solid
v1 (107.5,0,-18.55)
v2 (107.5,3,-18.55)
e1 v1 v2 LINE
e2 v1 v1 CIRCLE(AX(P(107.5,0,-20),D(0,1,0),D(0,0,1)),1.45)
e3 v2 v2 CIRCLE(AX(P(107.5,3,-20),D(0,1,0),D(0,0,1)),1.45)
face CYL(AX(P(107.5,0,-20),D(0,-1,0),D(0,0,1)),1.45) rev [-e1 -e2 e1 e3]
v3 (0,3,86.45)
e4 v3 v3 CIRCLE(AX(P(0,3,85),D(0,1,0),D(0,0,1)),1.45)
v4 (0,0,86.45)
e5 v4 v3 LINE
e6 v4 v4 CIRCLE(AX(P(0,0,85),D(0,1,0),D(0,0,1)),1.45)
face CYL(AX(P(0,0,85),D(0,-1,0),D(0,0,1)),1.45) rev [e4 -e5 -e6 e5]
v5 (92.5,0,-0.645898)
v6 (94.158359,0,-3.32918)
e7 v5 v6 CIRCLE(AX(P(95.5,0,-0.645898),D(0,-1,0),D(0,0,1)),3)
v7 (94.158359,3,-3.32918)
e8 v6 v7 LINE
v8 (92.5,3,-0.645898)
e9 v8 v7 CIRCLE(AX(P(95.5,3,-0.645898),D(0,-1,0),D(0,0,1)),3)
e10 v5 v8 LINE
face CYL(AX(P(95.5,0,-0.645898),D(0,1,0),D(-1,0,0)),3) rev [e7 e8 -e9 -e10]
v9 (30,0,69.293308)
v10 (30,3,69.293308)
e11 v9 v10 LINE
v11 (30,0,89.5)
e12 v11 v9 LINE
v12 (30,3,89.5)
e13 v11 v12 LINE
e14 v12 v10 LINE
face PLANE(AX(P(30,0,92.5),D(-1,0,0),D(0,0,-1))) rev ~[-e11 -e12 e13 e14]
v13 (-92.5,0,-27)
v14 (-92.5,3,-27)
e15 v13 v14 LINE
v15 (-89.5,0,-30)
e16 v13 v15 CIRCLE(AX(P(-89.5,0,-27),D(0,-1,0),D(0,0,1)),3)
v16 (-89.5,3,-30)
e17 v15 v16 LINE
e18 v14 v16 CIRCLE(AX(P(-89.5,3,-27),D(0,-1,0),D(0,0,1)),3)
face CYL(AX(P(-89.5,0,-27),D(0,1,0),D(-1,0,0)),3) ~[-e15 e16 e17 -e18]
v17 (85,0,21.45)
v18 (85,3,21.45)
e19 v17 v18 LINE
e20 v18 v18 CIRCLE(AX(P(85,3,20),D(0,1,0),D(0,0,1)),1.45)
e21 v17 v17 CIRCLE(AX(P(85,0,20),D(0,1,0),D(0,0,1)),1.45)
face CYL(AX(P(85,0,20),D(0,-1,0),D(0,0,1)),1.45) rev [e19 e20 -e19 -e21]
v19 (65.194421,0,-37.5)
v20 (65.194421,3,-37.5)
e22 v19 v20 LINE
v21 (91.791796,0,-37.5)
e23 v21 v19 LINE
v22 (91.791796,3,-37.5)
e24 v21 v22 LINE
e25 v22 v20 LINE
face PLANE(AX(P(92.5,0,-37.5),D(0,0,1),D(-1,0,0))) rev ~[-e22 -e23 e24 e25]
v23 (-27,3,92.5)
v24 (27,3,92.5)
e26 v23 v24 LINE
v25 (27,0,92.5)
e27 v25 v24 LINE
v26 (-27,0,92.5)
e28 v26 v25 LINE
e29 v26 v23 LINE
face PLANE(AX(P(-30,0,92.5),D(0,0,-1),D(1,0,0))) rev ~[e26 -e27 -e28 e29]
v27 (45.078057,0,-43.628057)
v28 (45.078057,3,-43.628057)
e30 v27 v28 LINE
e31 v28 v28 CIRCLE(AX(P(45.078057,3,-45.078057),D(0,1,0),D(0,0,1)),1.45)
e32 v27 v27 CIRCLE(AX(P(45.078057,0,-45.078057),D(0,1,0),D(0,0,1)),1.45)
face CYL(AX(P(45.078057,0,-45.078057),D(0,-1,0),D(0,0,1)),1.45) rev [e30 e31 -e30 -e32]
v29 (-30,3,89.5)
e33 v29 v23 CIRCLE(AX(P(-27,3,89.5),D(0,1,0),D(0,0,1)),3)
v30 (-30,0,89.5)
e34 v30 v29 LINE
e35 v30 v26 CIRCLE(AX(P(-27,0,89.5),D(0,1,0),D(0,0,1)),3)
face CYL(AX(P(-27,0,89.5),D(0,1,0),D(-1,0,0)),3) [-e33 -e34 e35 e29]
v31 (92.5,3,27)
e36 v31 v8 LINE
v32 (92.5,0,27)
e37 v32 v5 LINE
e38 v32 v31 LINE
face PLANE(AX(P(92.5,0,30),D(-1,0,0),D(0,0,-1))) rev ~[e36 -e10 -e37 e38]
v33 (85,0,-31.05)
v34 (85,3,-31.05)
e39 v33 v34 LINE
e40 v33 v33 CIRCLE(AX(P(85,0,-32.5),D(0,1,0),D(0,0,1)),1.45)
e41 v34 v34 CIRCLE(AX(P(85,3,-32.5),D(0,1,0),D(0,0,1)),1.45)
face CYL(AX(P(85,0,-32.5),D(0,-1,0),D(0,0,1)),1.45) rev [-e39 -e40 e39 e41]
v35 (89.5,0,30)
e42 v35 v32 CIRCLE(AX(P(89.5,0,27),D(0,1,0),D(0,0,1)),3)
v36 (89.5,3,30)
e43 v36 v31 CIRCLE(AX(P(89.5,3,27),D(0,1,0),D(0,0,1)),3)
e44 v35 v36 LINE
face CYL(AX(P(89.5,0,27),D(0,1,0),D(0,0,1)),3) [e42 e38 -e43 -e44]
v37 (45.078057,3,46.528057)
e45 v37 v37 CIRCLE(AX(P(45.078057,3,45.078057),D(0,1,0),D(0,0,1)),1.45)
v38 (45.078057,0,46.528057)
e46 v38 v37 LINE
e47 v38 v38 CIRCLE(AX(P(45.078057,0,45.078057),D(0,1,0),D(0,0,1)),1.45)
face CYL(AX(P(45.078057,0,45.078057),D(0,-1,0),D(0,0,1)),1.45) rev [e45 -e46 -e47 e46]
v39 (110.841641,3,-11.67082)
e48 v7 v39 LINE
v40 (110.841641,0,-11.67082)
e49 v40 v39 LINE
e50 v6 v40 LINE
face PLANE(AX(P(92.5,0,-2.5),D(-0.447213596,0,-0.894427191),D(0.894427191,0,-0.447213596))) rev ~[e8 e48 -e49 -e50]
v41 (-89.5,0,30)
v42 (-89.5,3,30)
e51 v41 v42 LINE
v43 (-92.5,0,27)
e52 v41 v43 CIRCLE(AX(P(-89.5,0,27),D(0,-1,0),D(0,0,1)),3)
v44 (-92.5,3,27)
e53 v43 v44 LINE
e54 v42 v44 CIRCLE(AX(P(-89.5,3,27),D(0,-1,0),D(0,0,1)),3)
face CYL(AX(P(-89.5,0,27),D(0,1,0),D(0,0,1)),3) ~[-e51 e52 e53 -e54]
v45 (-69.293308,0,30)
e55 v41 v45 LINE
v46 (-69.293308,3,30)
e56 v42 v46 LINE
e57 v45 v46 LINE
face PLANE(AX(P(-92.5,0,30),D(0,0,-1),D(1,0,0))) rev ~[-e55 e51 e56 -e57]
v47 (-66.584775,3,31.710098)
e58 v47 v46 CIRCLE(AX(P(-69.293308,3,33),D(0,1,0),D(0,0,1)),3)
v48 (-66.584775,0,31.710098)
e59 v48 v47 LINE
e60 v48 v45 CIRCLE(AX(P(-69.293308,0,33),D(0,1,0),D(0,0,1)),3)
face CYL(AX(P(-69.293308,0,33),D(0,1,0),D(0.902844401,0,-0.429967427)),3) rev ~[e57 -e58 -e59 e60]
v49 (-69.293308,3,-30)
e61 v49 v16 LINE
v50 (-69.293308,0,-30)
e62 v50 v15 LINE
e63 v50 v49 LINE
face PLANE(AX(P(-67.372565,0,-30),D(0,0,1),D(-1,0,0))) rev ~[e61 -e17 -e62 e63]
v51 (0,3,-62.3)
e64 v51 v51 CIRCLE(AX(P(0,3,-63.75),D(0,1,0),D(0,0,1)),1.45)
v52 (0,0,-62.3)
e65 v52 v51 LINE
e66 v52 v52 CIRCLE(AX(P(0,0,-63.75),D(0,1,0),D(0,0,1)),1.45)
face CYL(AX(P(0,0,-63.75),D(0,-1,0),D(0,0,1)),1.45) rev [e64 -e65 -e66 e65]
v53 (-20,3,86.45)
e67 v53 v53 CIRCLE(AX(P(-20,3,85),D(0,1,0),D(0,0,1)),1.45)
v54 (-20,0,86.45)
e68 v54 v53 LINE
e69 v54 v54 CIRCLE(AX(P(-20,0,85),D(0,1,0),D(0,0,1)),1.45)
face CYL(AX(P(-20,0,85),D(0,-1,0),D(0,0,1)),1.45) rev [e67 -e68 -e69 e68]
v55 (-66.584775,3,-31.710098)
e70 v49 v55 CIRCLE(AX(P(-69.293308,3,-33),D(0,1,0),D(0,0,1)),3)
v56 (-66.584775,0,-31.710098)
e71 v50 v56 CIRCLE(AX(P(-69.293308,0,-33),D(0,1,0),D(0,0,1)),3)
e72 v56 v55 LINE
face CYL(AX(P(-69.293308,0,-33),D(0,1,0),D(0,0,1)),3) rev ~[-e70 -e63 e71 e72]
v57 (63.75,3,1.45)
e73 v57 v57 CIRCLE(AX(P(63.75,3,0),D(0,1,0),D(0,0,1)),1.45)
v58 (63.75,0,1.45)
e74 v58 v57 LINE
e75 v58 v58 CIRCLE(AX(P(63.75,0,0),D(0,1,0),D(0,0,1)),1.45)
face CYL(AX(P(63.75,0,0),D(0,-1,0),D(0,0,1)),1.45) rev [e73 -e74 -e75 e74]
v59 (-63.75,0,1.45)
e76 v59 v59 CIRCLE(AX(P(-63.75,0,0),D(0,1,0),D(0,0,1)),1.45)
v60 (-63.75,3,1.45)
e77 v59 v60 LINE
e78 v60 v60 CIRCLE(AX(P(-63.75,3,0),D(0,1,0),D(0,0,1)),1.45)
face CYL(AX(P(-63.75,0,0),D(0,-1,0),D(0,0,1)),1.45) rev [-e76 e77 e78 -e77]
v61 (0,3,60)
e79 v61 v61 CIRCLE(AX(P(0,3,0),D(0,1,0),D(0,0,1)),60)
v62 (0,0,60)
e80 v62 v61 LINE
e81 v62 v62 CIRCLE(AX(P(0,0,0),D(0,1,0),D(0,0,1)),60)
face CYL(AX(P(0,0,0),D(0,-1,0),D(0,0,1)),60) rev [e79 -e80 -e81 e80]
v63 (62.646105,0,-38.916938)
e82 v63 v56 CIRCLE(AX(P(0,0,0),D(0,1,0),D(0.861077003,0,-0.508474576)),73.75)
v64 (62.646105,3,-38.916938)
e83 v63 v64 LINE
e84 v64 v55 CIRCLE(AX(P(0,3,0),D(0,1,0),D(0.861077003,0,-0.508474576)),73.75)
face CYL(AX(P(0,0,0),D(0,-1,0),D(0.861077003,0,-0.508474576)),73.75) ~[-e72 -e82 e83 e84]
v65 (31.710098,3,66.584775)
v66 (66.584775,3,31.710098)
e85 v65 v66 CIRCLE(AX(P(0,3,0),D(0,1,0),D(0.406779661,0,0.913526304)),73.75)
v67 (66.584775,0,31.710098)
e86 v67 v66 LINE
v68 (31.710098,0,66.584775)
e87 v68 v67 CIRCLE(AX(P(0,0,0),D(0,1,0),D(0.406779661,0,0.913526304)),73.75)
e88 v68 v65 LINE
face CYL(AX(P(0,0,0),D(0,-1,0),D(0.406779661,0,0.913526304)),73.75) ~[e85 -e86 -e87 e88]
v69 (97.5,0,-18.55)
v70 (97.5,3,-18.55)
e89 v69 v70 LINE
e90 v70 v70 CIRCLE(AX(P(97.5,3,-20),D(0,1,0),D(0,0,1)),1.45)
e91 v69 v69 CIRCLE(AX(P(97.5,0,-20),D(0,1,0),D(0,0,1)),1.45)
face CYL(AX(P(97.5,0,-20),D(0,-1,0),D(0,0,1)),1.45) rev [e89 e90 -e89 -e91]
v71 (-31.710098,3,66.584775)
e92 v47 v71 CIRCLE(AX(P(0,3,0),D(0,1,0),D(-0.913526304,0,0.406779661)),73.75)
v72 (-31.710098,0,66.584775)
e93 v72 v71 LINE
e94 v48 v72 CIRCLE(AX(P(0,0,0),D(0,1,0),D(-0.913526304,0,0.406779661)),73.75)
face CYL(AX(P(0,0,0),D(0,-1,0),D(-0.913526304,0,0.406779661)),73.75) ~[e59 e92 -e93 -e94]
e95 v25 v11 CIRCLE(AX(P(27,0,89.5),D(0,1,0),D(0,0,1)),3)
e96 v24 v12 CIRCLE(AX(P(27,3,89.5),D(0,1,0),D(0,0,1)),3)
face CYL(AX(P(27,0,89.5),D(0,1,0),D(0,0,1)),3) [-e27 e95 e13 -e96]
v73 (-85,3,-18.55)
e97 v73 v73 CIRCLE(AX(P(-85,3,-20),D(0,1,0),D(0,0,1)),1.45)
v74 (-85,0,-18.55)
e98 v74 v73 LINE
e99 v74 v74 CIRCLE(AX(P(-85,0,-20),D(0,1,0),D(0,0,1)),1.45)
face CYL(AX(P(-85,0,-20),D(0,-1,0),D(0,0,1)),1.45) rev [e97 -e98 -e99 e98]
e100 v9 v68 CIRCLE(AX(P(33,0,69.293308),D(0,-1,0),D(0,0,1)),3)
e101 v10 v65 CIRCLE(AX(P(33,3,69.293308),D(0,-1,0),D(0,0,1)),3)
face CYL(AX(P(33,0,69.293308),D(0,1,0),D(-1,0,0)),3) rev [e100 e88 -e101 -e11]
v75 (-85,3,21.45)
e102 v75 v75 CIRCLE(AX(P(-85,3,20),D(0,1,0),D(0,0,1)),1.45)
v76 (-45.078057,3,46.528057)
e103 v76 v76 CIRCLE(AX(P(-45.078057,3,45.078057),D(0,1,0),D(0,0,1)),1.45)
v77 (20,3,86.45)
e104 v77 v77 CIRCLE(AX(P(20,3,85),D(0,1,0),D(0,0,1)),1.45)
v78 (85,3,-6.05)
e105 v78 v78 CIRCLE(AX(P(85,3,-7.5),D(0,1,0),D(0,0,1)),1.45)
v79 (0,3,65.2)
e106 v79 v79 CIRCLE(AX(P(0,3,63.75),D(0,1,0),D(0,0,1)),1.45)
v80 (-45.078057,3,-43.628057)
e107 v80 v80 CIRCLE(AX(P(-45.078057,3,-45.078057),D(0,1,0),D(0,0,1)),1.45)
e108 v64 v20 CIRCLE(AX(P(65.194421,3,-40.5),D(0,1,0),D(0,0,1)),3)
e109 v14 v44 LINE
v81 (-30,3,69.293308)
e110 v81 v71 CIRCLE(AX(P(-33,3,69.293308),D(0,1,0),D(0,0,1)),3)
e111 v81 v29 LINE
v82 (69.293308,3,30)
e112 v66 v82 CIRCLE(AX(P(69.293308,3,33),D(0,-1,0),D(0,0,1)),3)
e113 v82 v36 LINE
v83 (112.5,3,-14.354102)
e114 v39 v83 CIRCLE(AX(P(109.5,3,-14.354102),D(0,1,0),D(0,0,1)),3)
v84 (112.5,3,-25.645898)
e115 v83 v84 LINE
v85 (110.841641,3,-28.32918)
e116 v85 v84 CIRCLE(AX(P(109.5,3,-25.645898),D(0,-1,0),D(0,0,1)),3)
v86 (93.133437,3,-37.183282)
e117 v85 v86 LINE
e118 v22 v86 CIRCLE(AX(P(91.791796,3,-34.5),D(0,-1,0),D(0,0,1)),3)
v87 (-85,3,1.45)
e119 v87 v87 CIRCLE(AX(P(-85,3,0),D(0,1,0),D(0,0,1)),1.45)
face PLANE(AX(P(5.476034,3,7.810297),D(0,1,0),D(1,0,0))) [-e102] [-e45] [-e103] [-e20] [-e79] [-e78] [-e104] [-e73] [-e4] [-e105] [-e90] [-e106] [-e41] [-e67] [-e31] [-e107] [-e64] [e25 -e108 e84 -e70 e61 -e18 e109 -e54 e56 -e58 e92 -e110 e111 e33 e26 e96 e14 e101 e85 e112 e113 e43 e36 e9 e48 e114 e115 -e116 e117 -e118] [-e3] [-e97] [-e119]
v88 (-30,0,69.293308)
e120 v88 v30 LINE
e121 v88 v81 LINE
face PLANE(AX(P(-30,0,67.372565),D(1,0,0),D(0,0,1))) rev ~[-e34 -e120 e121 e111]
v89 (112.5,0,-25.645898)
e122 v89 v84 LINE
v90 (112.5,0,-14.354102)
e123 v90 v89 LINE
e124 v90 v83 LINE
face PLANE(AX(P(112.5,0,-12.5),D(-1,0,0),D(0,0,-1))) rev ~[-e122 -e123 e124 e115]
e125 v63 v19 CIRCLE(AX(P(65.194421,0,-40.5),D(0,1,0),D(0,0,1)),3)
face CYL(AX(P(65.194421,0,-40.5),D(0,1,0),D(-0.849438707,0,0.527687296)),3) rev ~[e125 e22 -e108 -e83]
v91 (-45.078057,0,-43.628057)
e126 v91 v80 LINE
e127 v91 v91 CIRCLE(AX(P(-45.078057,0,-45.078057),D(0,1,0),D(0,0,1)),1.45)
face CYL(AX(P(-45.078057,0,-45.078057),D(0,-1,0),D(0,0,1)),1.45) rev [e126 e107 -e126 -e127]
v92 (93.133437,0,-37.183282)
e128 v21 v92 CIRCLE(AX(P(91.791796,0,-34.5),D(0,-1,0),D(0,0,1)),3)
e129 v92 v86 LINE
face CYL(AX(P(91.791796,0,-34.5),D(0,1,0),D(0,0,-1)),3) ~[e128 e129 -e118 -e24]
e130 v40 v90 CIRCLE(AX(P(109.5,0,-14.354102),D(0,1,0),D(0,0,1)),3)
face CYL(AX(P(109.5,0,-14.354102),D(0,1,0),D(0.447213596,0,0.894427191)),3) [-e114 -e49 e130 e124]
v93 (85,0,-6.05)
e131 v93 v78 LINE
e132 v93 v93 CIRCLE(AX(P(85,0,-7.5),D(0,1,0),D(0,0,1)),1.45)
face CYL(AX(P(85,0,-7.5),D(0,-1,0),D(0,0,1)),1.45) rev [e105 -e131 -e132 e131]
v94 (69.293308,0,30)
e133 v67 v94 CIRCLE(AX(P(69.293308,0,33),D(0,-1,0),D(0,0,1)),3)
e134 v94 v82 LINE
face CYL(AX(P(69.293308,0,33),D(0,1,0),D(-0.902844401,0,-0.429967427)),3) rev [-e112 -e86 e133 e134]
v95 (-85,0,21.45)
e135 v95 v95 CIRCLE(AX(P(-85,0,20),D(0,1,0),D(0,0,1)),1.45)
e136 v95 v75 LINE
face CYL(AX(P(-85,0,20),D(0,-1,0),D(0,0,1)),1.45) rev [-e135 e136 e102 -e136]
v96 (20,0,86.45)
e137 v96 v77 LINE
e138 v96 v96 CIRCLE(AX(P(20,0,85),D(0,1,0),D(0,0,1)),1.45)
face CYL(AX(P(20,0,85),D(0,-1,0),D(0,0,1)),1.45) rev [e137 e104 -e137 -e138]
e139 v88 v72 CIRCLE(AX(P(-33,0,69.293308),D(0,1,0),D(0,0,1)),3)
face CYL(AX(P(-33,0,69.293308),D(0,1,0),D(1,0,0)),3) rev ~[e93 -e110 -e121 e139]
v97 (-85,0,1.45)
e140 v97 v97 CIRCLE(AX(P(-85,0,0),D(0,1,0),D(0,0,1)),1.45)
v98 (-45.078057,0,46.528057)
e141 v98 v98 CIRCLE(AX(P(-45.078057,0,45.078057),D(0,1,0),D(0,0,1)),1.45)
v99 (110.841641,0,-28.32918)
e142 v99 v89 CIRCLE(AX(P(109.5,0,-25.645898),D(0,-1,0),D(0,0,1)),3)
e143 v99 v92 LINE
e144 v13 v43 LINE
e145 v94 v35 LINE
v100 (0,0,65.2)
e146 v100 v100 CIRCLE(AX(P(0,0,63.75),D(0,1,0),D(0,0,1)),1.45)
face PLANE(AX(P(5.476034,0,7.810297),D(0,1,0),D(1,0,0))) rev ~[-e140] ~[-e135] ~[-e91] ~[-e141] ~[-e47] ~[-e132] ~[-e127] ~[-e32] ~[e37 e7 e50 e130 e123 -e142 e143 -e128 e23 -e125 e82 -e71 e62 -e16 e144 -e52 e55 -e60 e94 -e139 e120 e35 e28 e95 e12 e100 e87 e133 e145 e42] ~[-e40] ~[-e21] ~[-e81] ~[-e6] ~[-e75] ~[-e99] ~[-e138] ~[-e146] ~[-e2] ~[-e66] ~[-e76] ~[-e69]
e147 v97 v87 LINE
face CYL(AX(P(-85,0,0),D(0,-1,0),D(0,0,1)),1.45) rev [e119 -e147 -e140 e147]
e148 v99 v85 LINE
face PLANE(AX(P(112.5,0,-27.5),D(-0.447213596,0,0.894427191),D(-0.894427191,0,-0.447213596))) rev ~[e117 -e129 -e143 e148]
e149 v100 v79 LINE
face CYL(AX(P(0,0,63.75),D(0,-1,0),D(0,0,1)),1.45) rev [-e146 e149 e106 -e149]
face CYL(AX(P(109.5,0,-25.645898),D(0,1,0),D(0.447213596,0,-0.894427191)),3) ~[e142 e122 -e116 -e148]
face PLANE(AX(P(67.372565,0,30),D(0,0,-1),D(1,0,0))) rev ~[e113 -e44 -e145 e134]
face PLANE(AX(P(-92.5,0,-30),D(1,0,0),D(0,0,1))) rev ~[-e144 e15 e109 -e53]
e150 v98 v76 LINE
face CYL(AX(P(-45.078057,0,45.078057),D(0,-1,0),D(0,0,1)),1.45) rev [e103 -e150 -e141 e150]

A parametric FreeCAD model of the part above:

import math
import FreeCAD as App
import Part
import Sketcher

V = App.Vector


def edges_at(feature, points):
    """Names of the edges that pass closest to the given points."""
    edges = feature.Shape.Edges
    near = lambda p: min(range(len(edges)), key=lambda i: edges[i].distToShape(Part.Vertex(*p))[0])
    return sorted({f"Edge{near(p) + 1}" for p in points})

doc = App.newDocument("Part")
body = doc.addObject("PartDesign::Body", "Body")

# Sketch on XZ plane
sketch1 = doc.addObject("Sketcher::SketchObject", "Sketch")
body.addObject(sketch1)
sketch1.AttachmentSupport = (doc.XZ_Plane, [""])
sketch1.MapMode = "FlatFace"
sketch1.addGeometry([
    Part.LineSegment(V(-30, 67.4, 0), V(-30, 92.5, 0)),  # 0
    Part.LineSegment(V(-30, 92.5, 0), V(30, 92.5, 0)),  # 1
    Part.LineSegment(V(30, 92.5, 0), V(30, 67.4, 0)),  # 2
    Part.ArcOfCircle(Part.Circle(V(0, 0, 0), V(0, 0, 1), 73.7), math.radians(24), math.radians(66)),  # 3
    Part.LineSegment(V(67.4, 30, 0), V(92.5, 30, 0)),  # 4
    Part.LineSegment(V(92.5, 30, 0), V(92.5, -2.5, 0)),  # 5
    Part.LineSegment(V(92.5, -2.5, 0), V(112.5, -12.5, 0)),  # 6
    Part.LineSegment(V(112.5, -12.5, 0), V(112.5, -27.5, 0)),  # 7
    Part.LineSegment(V(112.5, -27.5, 0), V(92.5, -37.5, 0)),  # 8
    Part.LineSegment(V(92.5, -37.5, 0), V(63.5, -37.5, 0)),  # 9
    Part.ArcOfCircle(Part.Circle(V(0, 0, 0), V(0, 0, 1), 73.8), math.radians(-156), math.radians(-31)),  # 10
    Part.LineSegment(V(-67.4, -30, 0), V(-92.5, -30, 0)),  # 11
    Part.LineSegment(V(-92.5, -30, 0), V(-92.5, 30, 0)),  # 12
    Part.LineSegment(V(-92.5, 30, 0), V(-67.4, 30, 0)),  # 13
    Part.ArcOfCircle(Part.Circle(V(0, 0, 0), V(0, 0, 1), 73.7), math.radians(114), math.radians(156)),  # 14
    Part.Circle(V(-20, 85, 0), V(0, 0, 1), 1.4),  # 15
    Part.Circle(V(0, 85, 0), V(0, 0, 1), 1.4),  # 16
    Part.Circle(V(0, 63.8, 0), V(0, 0, 1), 1.4),  # 17
    Part.Circle(V(-45.1, 45.1, 0), V(0, 0, 1), 1.4),  # 18
    Part.Circle(V(-85, 20, 0), V(0, 0, 1), 1.4),  # 19
    Part.Circle(V(20, 85, 0), V(0, 0, 1), 1.4),  # 20
    Part.Circle(V(45.1, 45.1, 0), V(0, 0, 1), 1.4),  # 21
    Part.Circle(V(85, 20, 0), V(0, 0, 1), 1.4),  # 22
    Part.Circle(V(-85, 0, 0), V(0, 0, 1), 1.4),  # 23
    Part.Circle(V(-63.8, 0, 0), V(0, 0, 1), 1.4),  # 24
    Part.Circle(V(-85, -20, 0), V(0, 0, 1), 1.4),  # 25
    Part.Circle(V(0, 0, 0), V(0, 0, 1), 60),  # 26
    Part.Circle(V(-45.1, -45.1, 0), V(0, 0, 1), 1.4),  # 27
    Part.Circle(V(0, -63.8, 0), V(0, 0, 1), 1.4),  # 28
    Part.Circle(V(63.8, 0, 0), V(0, 0, 1), 1.4),  # 29
    Part.Circle(V(85, -7.5, 0), V(0, 0, 1), 1.4),  # 30
    Part.Circle(V(97.5, -20, 0), V(0, 0, 1), 1.4),  # 31
    Part.Circle(V(107.5, -20, 0), V(0, 0, 1), 1.4),  # 32
    Part.Circle(V(45.1, -45.1, 0), V(0, 0, 1), 1.4),  # 33
    Part.Circle(V(85, -32.5, 0), V(0, 0, 1), 1.4),  # 34
], False)
sketch1.addConstraint([
    Sketcher.Constraint("Coincident", 0, 2, 1, 1),
    Sketcher.Constraint("Coincident", 1, 2, 2, 1),
    Sketcher.Constraint("Coincident", 2, 2, 3, 2),
    Sketcher.Constraint("Coincident", 3, 1, 4, 1),
    Sketcher.Constraint("Coincident", 4, 2, 5, 1),
    Sketcher.Constraint("Coincident", 5, 2, 6, 1),
    Sketcher.Constraint("Coincident", 6, 2, 7, 1),
    Sketcher.Constraint("Coincident", 7, 2, 8, 1),
    Sketcher.Constraint("Coincident", 8, 2, 9, 1),
    Sketcher.Constraint("Coincident", 9, 2, 10, 2),
    Sketcher.Constraint("Coincident", 10, 1, 11, 1),
    Sketcher.Constraint("Coincident", 11, 2, 12, 1),
    Sketcher.Constraint("Coincident", 12, 2, 13, 1),
    Sketcher.Constraint("Coincident", 13, 2, 14, 2),
    Sketcher.Constraint("Coincident", 14, 1, 0, 1),
    Sketcher.Constraint("Vertical", 0),
    Sketcher.Constraint("Horizontal", 1),
    Sketcher.Constraint("Vertical", 2),
    Sketcher.Constraint("Horizontal", 4),
    Sketcher.Constraint("Vertical", 5),
    Sketcher.Constraint("Vertical", 7),
    Sketcher.Constraint("Horizontal", 9),
    Sketcher.Constraint("Horizontal", 11),
    Sketcher.Constraint("Vertical", 12),
    Sketcher.Constraint("Horizontal", 13),
    Sketcher.Constraint("Coincident", 3, 3, -1, 1),
    Sketcher.Constraint("Coincident", 10, 3, -1, 1),
    Sketcher.Constraint("Coincident", 14, 3, -1, 1),
    Sketcher.Constraint("Coincident", 26, 3, -1, 1),
    Sketcher.Constraint("Equal", 3, 10),
    Sketcher.Constraint("Equal", 10, 14),
    Sketcher.Constraint("Equal", 15, 16),
    Sketcher.Constraint("Equal", 16, 17),
    Sketcher.Constraint("Equal", 17, 18),
    Sketcher.Constraint("Equal", 18, 19),
    Sketcher.Constraint("Equal", 19, 20),
    Sketcher.Constraint("Equal", 20, 21),
    Sketcher.Constraint("Equal", 21, 22),
    Sketcher.Constraint("Equal", 22, 23),
    Sketcher.Constraint("Equal", 23, 24),
    Sketcher.Constraint("Equal", 24, 25),
    Sketcher.Constraint("Equal", 25, 27),
    Sketcher.Constraint("Equal", 27, 28),
    Sketcher.Constraint("Equal", 28, 29),
    Sketcher.Constraint("Equal", 29, 30),
    Sketcher.Constraint("Equal", 30, 31),
    Sketcher.Constraint("Equal", 31, 32),
    Sketcher.Constraint("Equal", 32, 33),
    Sketcher.Constraint("Equal", 33, 34),
    Sketcher.Constraint("Symmetric", 22, 3, 25, 3, -1, 1),
    Sketcher.Constraint("Symmetric", 21, 3, 27, 3, -1, 1),
    Sketcher.Constraint("Symmetric", 17, 3, 28, 3, -1, 1),
    Sketcher.Constraint("Symmetric", 24, 3, 29, 3, -1, 1),
    Sketcher.Constraint("Symmetric", 18, 3, 33, 3, -1, 1),
    Sketcher.Constraint("Symmetric", 4, 2, 11, 2, -1, 1),
    Sketcher.Constraint("Symmetric", 15, 3, 20, 3, -2),
    Sketcher.Constraint("Symmetric", 18, 3, 21, 3, -2),
    Sketcher.Constraint("Symmetric", 19, 3, 22, 3, -2),
    Sketcher.Constraint("PointOnObject", 16, 3, -2),
    Sketcher.Constraint("PointOnObject", 17, 3, -2),
    Sketcher.Constraint("PointOnObject", 23, 3, -1),
    Sketcher.Constraint("PointOnObject", 24, 3, -1),
    Sketcher.Constraint("Horizontal", 15, 3, 16, 3),
    Sketcher.Constraint("Horizontal", 25, 3, 31, 3),
    Sketcher.Constraint("Horizontal", 31, 3, 32, 3),
    Sketcher.Constraint("Horizontal", 4, 2, 12, 2),
    Sketcher.Constraint("Horizontal", 2, 2, 14, 1),
    Sketcher.Constraint("Vertical", 19, 3, 23, 3),
    Sketcher.Constraint("Vertical", 22, 3, 30, 3),
    Sketcher.Constraint("Vertical", 30, 3, 34, 3),
    Sketcher.Constraint("Vertical", 5, 2, 8, 2),
    Sketcher.Constraint("Equal", 13, 0),
    Sketcher.Constraint("Equal", 1, 12),
    Sketcher.Constraint("Equal", 6, 8),
    Sketcher.Constraint("Diameter", 26, 120.0),
    Sketcher.Constraint("Diameter", 15, 2.9),
    Sketcher.Constraint("DistanceX", 1, 1, 1, 2, 60.0),
    Sketcher.Constraint("DistanceY", 7, 2, 7, 1, 15.0),
    Sketcher.Constraint("Radius", 3, 73.75),
    Sketcher.Constraint("DistanceY", 5, 2, 5, 1, 32.5),
    Sketcher.Constraint("DistanceX", 15, 3, -1, 1, 20.0),
    Sketcher.Constraint("DistanceY", -1, 1, 15, 3, 85.0),
    Sketcher.Constraint("DistanceX", 19, 3, -1, 1, 85.0),
    Sketcher.Constraint("DistanceY", -1, 1, 19, 3, 20.0),
    Sketcher.Constraint("DistanceX", 31, 3, 32, 3, 10.0),
    Sketcher.Constraint("DistanceY", 34, 3, 30, 3, 25.0),
    Sketcher.Constraint("DistanceY", 30, 3, 5, 2, 5.0),
    Sketcher.Constraint("DistanceX", 5, 2, 31, 3, 5.0),
    Sketcher.Constraint("DistanceX", 32, 3, 6, 2, 5.0),
    Sketcher.Constraint("DistanceY", 6, 2, 5, 2, 10.0),
    Sketcher.Constraint("DistanceX", -1, 1, 31, 3, 97.5),
    Sketcher.Constraint("DistanceY", -1, 1, 17, 3, 63.75),
    Sketcher.Constraint("DistanceX", 24, 3, -1, 1, 63.75),
    Sketcher.Constraint("DistanceX", 33, 3, 9, 2, 18.426372),
    Sketcher.Constraint("DistanceY", -1, 1, 18, 3, 45.078057),
])
pad1 = doc.addObject("PartDesign::Pad", "Pad")
body.addObject(pad1)
pad1.Profile = sketch1
pad1.Length = 3
pad1.Reversed = True
doc.recompute()

fillet = doc.addObject("PartDesign::Fillet", "Fillet")
body.addObject(fillet)
fillet.Base = (pad1, edges_at(pad1, [
    (63.504, 1.5, -37.5),
    (92.5, 1.5, -37.5),
    (112.5, 1.5, -27.5),
    (112.5, 1.5, -12.5),
    (92.5, 1.5, -2.5),
    (92.5, 1.5, 30),
    (67.373, 1.5, 30),
    (30, 1.5, 67.373),
    (30, 1.5, 92.5),
    (-30, 1.5, 92.5),
    (-30, 1.5, 67.373),
    (-67.373, 1.5, 30),
    (-92.5, 1.5, 30),
    (-92.5, 1.5, -30),
    (-67.373, 1.5, -30),
]))
fillet.Radius = 3

doc.recompute()
